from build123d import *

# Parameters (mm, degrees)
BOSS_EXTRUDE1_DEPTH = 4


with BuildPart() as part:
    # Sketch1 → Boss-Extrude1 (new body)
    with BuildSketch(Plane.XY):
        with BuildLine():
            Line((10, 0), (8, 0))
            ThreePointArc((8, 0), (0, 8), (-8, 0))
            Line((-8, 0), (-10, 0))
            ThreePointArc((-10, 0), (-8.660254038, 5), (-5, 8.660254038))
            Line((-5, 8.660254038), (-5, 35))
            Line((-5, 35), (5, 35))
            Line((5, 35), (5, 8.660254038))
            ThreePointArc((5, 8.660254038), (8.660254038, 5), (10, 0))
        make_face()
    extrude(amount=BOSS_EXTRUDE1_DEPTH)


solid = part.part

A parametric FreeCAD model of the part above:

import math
import FreeCAD as App
import Part
import Sketcher
Q = App.Units.Quantity

doc = App.newDocument("Part")
params = doc.addObject("Spreadsheet::Sheet", "Params")
for row, (alias, value) in enumerate([
    ("sketch1_radius", "10 mm"),
    ("sketch1_radius2", "8 mm"),
    ("sketch1_width", "10 mm"),
    ("pad1_length", "4 mm"),
], start=1):
    params.set(f"A{row}", alias)
    params.set(f"B{row}", "=" + value)
    params.setAlias(f"B{row}", alias)

body = doc.addObject("PartDesign::Body", "Body")

# Sketch on XY plane
sketch1 = body.newObject("Sketcher::SketchObject", "Sketch")
sketch1.AttachmentSupport = (doc.getObject("XY_Plane"), [""])
sketch1.MapMode = "FlatFace"
sketch1.addGeometry([
    Part.LineSegment(App.Vector(8, 0, 0), App.Vector(10, 0, 0)),  # 0
    Part.ArcOfCircle(Part.Circle(App.Vector(0, 0, 0), App.Vector(0, 0, 1), 10), math.radians(0), math.radians(60)),  # 1
    Part.LineSegment(App.Vector(5, 8.7, 0), App.Vector(5, 35, 0)),  # 2
    Part.LineSegment(App.Vector(5, 35, 0), App.Vector(-5, 35, 0)),  # 3
    Part.LineSegment(App.Vector(-5, 35, 0), App.Vector(-5, 8.7, 0)),  # 4
    Part.ArcOfCircle(Part.Circle(App.Vector(0, 0, 0), App.Vector(0, 0, 1), 10), math.radians(120), math.radians(180)),  # 5
    Part.LineSegment(App.Vector(-10, 0, 0), App.Vector(-8, 0, 0)),  # 6
    Part.ArcOfCircle(Part.Circle(App.Vector(0, 0, 0), App.Vector(0, 0, 1), 8), math.radians(0), math.radians(180)),  # 7
], False)
sketch1.addConstraint([
    Sketcher.Constraint("Coincident", 0, 2, 1, 1),
    Sketcher.Constraint("Coincident", 1, 2, 2, 1),
    Sketcher.Constraint("Coincident", 2, 2, 3, 1),
    Sketcher.Constraint("Coincident", 3, 2, 4, 1),
    Sketcher.Constraint("Coincident", 4, 2, 5, 1),
    Sketcher.Constraint("Coincident", 5, 2, 6, 1),
    Sketcher.Constraint("Coincident", 6, 2, 7, 2),
    Sketcher.Constraint("Coincident", 7, 1, 0, 1),
    Sketcher.Constraint("Horizontal", 0),
    Sketcher.Constraint("Vertical", 2),
    Sketcher.Constraint("Horizontal", 3),
    Sketcher.Constraint("Vertical", 4),
    Sketcher.Constraint("Horizontal", 6),
    Sketcher.Constraint("Coincident", 1, 3, -1, 1),
    Sketcher.Constraint("Coincident", 5, 3, -1, 1),
    Sketcher.Constraint("Coincident", 7, 3, -1, 1),
    Sketcher.Constraint("Equal", 1, 5),
    Sketcher.Constraint("PointOnObject", 0, 2, -1),
    Sketcher.Constraint("PointOnObject", 5, 2, -1),
    Sketcher.Constraint("Horizontal", 1, 2, 4, 2),
    Sketcher.Constraint("Radius", 1, Q("10 mm")),
    Sketcher.Constraint("Radius", 7, Q("8 mm")),
    Sketcher.Constraint("DistanceX", 3, 2, 3, 1, Q("10 mm")),
    Sketcher.Constraint("DistanceY", -1, 1, 2, 2, Q("35 mm")),
])
sketch1.setExpression("Constraints[20]", "Params.sketch1_radius")
sketch1.setExpression("Constraints[21]", "Params.sketch1_radius2")
sketch1.setExpression("Constraints[22]", "Params.sketch1_width")
pad1 = body.newObject("PartDesign::Pad", "Pad")
pad1.Profile = sketch1
pad1.setExpression("Length", "Params.pad1_length")

doc.recompute()
